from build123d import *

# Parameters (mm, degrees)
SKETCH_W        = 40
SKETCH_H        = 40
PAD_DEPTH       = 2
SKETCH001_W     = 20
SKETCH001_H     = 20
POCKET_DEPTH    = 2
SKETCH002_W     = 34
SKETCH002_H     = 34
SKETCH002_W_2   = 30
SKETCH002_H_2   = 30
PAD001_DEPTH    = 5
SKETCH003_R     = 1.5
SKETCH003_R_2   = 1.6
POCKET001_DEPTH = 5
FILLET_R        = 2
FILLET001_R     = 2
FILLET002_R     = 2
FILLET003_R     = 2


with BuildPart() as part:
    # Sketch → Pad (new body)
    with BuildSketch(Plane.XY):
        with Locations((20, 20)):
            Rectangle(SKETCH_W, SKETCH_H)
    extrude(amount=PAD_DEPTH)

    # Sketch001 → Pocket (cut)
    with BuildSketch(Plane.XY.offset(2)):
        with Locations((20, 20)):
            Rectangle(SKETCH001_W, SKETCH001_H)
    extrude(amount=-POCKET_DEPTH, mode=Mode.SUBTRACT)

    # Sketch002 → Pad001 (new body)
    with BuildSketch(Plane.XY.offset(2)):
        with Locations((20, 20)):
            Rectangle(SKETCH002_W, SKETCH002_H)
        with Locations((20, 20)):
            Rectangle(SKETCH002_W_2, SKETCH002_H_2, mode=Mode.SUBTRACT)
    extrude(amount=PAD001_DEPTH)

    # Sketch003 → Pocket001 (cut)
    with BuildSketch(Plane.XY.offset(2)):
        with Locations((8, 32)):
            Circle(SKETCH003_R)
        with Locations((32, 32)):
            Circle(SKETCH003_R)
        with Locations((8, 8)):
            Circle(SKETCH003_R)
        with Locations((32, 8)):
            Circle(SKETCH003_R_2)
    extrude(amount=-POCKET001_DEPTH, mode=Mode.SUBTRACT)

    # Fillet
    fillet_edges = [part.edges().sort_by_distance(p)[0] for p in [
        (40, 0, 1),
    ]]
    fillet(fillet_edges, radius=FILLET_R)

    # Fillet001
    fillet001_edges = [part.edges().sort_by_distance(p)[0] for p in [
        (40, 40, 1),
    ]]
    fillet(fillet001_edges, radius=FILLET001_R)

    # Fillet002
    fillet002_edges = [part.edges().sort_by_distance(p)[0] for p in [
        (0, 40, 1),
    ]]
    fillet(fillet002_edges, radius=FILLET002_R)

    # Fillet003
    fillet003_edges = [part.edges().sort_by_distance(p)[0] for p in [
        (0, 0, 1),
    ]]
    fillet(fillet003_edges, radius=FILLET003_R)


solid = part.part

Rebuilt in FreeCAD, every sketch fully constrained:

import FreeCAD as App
import Part
import Sketcher
from FreeCAD import Vector
Q = App.Units.Quantity


def edges_at(feature, points):
    """Names of the edges that pass closest to the given points."""
    edges = feature.Shape.Edges
    near = lambda p: min(range(len(edges)), key=lambda i: edges[i].distToShape(Part.Vertex(*p))[0])
    return sorted({f"Edge{near(p) + 1}" for p in points})

doc = App.newDocument("Part")
body = doc.addObject("PartDesign::Body", "Body")

# Sketch on XY plane
sketch1 = body.newObject("Sketcher::SketchObject", "Sketch")
sketch1.AttachmentSupport = (doc.getObject("XY_Plane"), [""])
sketch1.MapMode = "FlatFace"
sketch1.addGeometry([
    Part.LineSegment(Vector(0, 40, 0), Vector(0, 0, 0)),
    Part.LineSegment(Vector(0, 0, 0), Vector(40, 0, 0)),
    Part.LineSegment(Vector(40, 0, 0), Vector(40, 40, 0)),
    Part.LineSegment(Vector(40, 40, 0), Vector(0, 40, 0)),
], False)
sketch1.addConstraint([
    Sketcher.Constraint("Coincident", 0, 2, 1, 1),
    Sketcher.Constraint("Coincident", 1, 2, 2, 1),
    Sketcher.Constraint("Coincident", 2, 2, 3, 1),
    Sketcher.Constraint("Coincident", 3, 2, 0, 1),
    Sketcher.Constraint("Vertical", 0),
    Sketcher.Constraint("Horizontal", 1),
    Sketcher.Constraint("Vertical", 2),
    Sketcher.Constraint("Horizontal", 3),
    Sketcher.Constraint("Coincident", 0, 2, -1, 1),
    Sketcher.Constraint("Equal", 3, 0),
    Sketcher.Constraint("DistanceX", 1, 1, 1, 2, Q("40 mm")),
])
pad1 = body.newObject("PartDesign::Pad", "Pad")
pad1.Profile = sketch1
pad1.Length = 2

# Sketch on XY plane
sketch2 = body.newObject("Sketcher::SketchObject", "Sketch001")
sketch2.AttachmentSupport = (doc.getObject("XY_Plane"), [""])
sketch2.MapMode = "FlatFace"
sketch2.AttachmentOffset = App.Placement(Vector(0, 0, 2), App.Rotation())
sketch2.addGeometry([
    Part.LineSegment(Vector(10, 30, 0), Vector(10, 10, 0)),
    Part.LineSegment(Vector(10, 10, 0), Vector(30, 10, 0)),
    Part.LineSegment(Vector(30, 10, 0), Vector(30, 30, 0)),
    Part.LineSegment(Vector(30, 30, 0), Vector(10, 30, 0)),
], False)
sketch2.addConstraint([
    Sketcher.Constraint("Coincident", 0, 2, 1, 1),
    Sketcher.Constraint("Coincident", 1, 2, 2, 1),
    Sketcher.Constraint("Coincident", 2, 2, 3, 1),
    Sketcher.Constraint("Coincident", 3, 2, 0, 1),
    Sketcher.Constraint("Vertical", 0),
    Sketcher.Constraint("Horizontal", 1),
    Sketcher.Constraint("Vertical", 2),
    Sketcher.Constraint("Horizontal", 3),
    Sketcher.Constraint("Equal", 3, 0),
    Sketcher.Constraint("DistanceX", 1, 1, 1, 2, Q("20 mm")),
    Sketcher.Constraint("DistanceX", -1, 1, 0, 2, Q("10 mm")),
    Sketcher.Constraint("DistanceY", -1, 1, 0, 2, Q("10 mm")),
])
pocket1 = body.newObject("PartDesign::Pocket", "Pocket")
pocket1.Profile = sketch2
pocket1.Length = 2

# Sketch on XY plane
sketch3 = body.newObject("Sketcher::SketchObject", "Sketch002")
sketch3.AttachmentSupport = (doc.getObject("XY_Plane"), [""])
sketch3.MapMode = "FlatFace"
sketch3.AttachmentOffset = App.Placement(Vector(0, 0, 2), App.Rotation())
sketch3.addGeometry([
    Part.LineSegment(Vector(3, 37, 0), Vector(3, 3, 0)),  # 0
    Part.LineSegment(Vector(3, 3, 0), Vector(37, 3, 0)),  # 1
    Part.LineSegment(Vector(37, 3, 0), Vector(37, 37, 0)),  # 2
    Part.LineSegment(Vector(37, 37, 0), Vector(3, 37, 0)),  # 3
    Part.LineSegment(Vector(35, 5, 0), Vector(5, 5, 0)),  # 4
    Part.LineSegment(Vector(5, 5, 0), Vector(5, 35, 0)),  # 5
    Part.LineSegment(Vector(5, 35, 0), Vector(35, 35, 0)),  # 6
    Part.LineSegment(Vector(35, 35, 0), Vector(35, 5, 0)),  # 7
], False)
sketch3.addConstraint([
    Sketcher.Constraint("Coincident", 0, 2, 1, 1),
    Sketcher.Constraint("Coincident", 1, 2, 2, 1),
    Sketcher.Constraint("Coincident", 2, 2, 3, 1),
    Sketcher.Constraint("Coincident", 3, 2, 0, 1),
    Sketcher.Constraint("Coincident", 4, 2, 5, 1),
    Sketcher.Constraint("Coincident", 5, 2, 6, 1),
    Sketcher.Constraint("Coincident", 6, 2, 7, 1),
    Sketcher.Constraint("Coincident", 7, 2, 4, 1),
    Sketcher.Constraint("Vertical", 0),
    Sketcher.Constraint("Horizontal", 1),
    Sketcher.Constraint("Vertical", 2),
    Sketcher.Constraint("Horizontal", 3),
    Sketcher.Constraint("Horizontal", 4),
    Sketcher.Constraint("Vertical", 5),
    Sketcher.Constraint("Horizontal", 6),
    Sketcher.Constraint("Vertical", 7),
    Sketcher.Constraint("Equal", 3, 0),
    Sketcher.Constraint("Equal", 6, 5),
    Sketcher.Constraint("DistanceX", 1, 1, 1, 2, Q("34 mm")),
    Sketcher.Constraint("DistanceX", 4, 2, 4, 1, Q("30 mm")),
    Sketcher.Constraint("DistanceX", -1, 1, 0, 2, Q("3 mm")),
    Sketcher.Constraint("DistanceY", -1, 1, 0, 2, Q("3 mm")),
    Sketcher.Constraint("DistanceX", -1, 1, 4, 2, Q("5 mm")),
    Sketcher.Constraint("DistanceY", -1, 1, 4, 2, Q("5 mm")),
])
pad2 = body.newObject("PartDesign::Pad", "Pad001")
pad2.Profile = sketch3
pad2.Length = 5

# Sketch on XY plane
sketch4 = body.newObject("Sketcher::SketchObject", "Sketch003")
sketch4.AttachmentSupport = (doc.getObject("XY_Plane"), [""])
sketch4.MapMode = "FlatFace"
sketch4.AttachmentOffset = App.Placement(Vector(0, 0, 2), App.Rotation())
sketch4.addGeometry([
    Part.Circle(Vector(8, 32, 0), Vector(0, 0, 1), 1.5),
    Part.Circle(Vector(32, 32, 0), Vector(0, 0, 1), 1.5),
    Part.Circle(Vector(8, 8, 0), Vector(0, 0, 1), 1.5),
    Part.Circle(Vector(32, 8, 0), Vector(0, 0, 1), 1.6),
], False)
sketch4.addConstraint([
    Sketcher.Constraint("Equal", 0, 1),
    Sketcher.Constraint("Equal", 1, 2),
    Sketcher.Constraint("Horizontal", 0, 3, 1, 3),
    Sketcher.Constraint("Horizontal", 2, 3, 3, 3),
    Sketcher.Constraint("Vertical", 0, 3, 2, 3),
    Sketcher.Constraint("Vertical", 1, 3, 3, 3),
    Sketcher.Constraint("Diameter", 0, Q("3 mm")),
    Sketcher.Constraint("Diameter", 3, Q("3.2 mm")),
    Sketcher.Constraint("DistanceX", -1, 1, 0, 3, Q("8 mm")),
    Sketcher.Constraint("DistanceY", -1, 1, 0, 3, Q("32 mm")),
    Sketcher.Constraint("DistanceX", -1, 1, 1, 3, Q("32 mm")),
    Sketcher.Constraint("DistanceY", -1, 1, 2, 3, Q("8 mm")),
])
pocket2 = body.newObject("PartDesign::Pocket", "Pocket001")
pocket2.Profile = sketch4
pocket2.Length = 5
doc.recompute()

fillet = body.newObject("PartDesign::Fillet", "Fillet")
fillet.Base = (pocket2, edges_at(pocket2, [(40, 0, 1)]))
fillet.Radius = 2
doc.recompute()

fillet2 = body.newObject("PartDesign::Fillet", "Fillet001")
fillet2.Base = (fillet, edges_at(fillet, [(40, 40, 1)]))
fillet2.Radius = 2
doc.recompute()

fillet3 = body.newObject("PartDesign::Fillet", "Fillet002")
fillet3.Base = (fillet2, edges_at(fillet2, [(0, 40, 1)]))
fillet3.Radius = 2
doc.recompute()

fillet4 = body.newObject("PartDesign::Fillet", "Fillet003")
fillet4.Base = (fillet3, edges_at(fillet3, [(0, 0, 1)]))
fillet4.Radius = 2

doc.recompute()
